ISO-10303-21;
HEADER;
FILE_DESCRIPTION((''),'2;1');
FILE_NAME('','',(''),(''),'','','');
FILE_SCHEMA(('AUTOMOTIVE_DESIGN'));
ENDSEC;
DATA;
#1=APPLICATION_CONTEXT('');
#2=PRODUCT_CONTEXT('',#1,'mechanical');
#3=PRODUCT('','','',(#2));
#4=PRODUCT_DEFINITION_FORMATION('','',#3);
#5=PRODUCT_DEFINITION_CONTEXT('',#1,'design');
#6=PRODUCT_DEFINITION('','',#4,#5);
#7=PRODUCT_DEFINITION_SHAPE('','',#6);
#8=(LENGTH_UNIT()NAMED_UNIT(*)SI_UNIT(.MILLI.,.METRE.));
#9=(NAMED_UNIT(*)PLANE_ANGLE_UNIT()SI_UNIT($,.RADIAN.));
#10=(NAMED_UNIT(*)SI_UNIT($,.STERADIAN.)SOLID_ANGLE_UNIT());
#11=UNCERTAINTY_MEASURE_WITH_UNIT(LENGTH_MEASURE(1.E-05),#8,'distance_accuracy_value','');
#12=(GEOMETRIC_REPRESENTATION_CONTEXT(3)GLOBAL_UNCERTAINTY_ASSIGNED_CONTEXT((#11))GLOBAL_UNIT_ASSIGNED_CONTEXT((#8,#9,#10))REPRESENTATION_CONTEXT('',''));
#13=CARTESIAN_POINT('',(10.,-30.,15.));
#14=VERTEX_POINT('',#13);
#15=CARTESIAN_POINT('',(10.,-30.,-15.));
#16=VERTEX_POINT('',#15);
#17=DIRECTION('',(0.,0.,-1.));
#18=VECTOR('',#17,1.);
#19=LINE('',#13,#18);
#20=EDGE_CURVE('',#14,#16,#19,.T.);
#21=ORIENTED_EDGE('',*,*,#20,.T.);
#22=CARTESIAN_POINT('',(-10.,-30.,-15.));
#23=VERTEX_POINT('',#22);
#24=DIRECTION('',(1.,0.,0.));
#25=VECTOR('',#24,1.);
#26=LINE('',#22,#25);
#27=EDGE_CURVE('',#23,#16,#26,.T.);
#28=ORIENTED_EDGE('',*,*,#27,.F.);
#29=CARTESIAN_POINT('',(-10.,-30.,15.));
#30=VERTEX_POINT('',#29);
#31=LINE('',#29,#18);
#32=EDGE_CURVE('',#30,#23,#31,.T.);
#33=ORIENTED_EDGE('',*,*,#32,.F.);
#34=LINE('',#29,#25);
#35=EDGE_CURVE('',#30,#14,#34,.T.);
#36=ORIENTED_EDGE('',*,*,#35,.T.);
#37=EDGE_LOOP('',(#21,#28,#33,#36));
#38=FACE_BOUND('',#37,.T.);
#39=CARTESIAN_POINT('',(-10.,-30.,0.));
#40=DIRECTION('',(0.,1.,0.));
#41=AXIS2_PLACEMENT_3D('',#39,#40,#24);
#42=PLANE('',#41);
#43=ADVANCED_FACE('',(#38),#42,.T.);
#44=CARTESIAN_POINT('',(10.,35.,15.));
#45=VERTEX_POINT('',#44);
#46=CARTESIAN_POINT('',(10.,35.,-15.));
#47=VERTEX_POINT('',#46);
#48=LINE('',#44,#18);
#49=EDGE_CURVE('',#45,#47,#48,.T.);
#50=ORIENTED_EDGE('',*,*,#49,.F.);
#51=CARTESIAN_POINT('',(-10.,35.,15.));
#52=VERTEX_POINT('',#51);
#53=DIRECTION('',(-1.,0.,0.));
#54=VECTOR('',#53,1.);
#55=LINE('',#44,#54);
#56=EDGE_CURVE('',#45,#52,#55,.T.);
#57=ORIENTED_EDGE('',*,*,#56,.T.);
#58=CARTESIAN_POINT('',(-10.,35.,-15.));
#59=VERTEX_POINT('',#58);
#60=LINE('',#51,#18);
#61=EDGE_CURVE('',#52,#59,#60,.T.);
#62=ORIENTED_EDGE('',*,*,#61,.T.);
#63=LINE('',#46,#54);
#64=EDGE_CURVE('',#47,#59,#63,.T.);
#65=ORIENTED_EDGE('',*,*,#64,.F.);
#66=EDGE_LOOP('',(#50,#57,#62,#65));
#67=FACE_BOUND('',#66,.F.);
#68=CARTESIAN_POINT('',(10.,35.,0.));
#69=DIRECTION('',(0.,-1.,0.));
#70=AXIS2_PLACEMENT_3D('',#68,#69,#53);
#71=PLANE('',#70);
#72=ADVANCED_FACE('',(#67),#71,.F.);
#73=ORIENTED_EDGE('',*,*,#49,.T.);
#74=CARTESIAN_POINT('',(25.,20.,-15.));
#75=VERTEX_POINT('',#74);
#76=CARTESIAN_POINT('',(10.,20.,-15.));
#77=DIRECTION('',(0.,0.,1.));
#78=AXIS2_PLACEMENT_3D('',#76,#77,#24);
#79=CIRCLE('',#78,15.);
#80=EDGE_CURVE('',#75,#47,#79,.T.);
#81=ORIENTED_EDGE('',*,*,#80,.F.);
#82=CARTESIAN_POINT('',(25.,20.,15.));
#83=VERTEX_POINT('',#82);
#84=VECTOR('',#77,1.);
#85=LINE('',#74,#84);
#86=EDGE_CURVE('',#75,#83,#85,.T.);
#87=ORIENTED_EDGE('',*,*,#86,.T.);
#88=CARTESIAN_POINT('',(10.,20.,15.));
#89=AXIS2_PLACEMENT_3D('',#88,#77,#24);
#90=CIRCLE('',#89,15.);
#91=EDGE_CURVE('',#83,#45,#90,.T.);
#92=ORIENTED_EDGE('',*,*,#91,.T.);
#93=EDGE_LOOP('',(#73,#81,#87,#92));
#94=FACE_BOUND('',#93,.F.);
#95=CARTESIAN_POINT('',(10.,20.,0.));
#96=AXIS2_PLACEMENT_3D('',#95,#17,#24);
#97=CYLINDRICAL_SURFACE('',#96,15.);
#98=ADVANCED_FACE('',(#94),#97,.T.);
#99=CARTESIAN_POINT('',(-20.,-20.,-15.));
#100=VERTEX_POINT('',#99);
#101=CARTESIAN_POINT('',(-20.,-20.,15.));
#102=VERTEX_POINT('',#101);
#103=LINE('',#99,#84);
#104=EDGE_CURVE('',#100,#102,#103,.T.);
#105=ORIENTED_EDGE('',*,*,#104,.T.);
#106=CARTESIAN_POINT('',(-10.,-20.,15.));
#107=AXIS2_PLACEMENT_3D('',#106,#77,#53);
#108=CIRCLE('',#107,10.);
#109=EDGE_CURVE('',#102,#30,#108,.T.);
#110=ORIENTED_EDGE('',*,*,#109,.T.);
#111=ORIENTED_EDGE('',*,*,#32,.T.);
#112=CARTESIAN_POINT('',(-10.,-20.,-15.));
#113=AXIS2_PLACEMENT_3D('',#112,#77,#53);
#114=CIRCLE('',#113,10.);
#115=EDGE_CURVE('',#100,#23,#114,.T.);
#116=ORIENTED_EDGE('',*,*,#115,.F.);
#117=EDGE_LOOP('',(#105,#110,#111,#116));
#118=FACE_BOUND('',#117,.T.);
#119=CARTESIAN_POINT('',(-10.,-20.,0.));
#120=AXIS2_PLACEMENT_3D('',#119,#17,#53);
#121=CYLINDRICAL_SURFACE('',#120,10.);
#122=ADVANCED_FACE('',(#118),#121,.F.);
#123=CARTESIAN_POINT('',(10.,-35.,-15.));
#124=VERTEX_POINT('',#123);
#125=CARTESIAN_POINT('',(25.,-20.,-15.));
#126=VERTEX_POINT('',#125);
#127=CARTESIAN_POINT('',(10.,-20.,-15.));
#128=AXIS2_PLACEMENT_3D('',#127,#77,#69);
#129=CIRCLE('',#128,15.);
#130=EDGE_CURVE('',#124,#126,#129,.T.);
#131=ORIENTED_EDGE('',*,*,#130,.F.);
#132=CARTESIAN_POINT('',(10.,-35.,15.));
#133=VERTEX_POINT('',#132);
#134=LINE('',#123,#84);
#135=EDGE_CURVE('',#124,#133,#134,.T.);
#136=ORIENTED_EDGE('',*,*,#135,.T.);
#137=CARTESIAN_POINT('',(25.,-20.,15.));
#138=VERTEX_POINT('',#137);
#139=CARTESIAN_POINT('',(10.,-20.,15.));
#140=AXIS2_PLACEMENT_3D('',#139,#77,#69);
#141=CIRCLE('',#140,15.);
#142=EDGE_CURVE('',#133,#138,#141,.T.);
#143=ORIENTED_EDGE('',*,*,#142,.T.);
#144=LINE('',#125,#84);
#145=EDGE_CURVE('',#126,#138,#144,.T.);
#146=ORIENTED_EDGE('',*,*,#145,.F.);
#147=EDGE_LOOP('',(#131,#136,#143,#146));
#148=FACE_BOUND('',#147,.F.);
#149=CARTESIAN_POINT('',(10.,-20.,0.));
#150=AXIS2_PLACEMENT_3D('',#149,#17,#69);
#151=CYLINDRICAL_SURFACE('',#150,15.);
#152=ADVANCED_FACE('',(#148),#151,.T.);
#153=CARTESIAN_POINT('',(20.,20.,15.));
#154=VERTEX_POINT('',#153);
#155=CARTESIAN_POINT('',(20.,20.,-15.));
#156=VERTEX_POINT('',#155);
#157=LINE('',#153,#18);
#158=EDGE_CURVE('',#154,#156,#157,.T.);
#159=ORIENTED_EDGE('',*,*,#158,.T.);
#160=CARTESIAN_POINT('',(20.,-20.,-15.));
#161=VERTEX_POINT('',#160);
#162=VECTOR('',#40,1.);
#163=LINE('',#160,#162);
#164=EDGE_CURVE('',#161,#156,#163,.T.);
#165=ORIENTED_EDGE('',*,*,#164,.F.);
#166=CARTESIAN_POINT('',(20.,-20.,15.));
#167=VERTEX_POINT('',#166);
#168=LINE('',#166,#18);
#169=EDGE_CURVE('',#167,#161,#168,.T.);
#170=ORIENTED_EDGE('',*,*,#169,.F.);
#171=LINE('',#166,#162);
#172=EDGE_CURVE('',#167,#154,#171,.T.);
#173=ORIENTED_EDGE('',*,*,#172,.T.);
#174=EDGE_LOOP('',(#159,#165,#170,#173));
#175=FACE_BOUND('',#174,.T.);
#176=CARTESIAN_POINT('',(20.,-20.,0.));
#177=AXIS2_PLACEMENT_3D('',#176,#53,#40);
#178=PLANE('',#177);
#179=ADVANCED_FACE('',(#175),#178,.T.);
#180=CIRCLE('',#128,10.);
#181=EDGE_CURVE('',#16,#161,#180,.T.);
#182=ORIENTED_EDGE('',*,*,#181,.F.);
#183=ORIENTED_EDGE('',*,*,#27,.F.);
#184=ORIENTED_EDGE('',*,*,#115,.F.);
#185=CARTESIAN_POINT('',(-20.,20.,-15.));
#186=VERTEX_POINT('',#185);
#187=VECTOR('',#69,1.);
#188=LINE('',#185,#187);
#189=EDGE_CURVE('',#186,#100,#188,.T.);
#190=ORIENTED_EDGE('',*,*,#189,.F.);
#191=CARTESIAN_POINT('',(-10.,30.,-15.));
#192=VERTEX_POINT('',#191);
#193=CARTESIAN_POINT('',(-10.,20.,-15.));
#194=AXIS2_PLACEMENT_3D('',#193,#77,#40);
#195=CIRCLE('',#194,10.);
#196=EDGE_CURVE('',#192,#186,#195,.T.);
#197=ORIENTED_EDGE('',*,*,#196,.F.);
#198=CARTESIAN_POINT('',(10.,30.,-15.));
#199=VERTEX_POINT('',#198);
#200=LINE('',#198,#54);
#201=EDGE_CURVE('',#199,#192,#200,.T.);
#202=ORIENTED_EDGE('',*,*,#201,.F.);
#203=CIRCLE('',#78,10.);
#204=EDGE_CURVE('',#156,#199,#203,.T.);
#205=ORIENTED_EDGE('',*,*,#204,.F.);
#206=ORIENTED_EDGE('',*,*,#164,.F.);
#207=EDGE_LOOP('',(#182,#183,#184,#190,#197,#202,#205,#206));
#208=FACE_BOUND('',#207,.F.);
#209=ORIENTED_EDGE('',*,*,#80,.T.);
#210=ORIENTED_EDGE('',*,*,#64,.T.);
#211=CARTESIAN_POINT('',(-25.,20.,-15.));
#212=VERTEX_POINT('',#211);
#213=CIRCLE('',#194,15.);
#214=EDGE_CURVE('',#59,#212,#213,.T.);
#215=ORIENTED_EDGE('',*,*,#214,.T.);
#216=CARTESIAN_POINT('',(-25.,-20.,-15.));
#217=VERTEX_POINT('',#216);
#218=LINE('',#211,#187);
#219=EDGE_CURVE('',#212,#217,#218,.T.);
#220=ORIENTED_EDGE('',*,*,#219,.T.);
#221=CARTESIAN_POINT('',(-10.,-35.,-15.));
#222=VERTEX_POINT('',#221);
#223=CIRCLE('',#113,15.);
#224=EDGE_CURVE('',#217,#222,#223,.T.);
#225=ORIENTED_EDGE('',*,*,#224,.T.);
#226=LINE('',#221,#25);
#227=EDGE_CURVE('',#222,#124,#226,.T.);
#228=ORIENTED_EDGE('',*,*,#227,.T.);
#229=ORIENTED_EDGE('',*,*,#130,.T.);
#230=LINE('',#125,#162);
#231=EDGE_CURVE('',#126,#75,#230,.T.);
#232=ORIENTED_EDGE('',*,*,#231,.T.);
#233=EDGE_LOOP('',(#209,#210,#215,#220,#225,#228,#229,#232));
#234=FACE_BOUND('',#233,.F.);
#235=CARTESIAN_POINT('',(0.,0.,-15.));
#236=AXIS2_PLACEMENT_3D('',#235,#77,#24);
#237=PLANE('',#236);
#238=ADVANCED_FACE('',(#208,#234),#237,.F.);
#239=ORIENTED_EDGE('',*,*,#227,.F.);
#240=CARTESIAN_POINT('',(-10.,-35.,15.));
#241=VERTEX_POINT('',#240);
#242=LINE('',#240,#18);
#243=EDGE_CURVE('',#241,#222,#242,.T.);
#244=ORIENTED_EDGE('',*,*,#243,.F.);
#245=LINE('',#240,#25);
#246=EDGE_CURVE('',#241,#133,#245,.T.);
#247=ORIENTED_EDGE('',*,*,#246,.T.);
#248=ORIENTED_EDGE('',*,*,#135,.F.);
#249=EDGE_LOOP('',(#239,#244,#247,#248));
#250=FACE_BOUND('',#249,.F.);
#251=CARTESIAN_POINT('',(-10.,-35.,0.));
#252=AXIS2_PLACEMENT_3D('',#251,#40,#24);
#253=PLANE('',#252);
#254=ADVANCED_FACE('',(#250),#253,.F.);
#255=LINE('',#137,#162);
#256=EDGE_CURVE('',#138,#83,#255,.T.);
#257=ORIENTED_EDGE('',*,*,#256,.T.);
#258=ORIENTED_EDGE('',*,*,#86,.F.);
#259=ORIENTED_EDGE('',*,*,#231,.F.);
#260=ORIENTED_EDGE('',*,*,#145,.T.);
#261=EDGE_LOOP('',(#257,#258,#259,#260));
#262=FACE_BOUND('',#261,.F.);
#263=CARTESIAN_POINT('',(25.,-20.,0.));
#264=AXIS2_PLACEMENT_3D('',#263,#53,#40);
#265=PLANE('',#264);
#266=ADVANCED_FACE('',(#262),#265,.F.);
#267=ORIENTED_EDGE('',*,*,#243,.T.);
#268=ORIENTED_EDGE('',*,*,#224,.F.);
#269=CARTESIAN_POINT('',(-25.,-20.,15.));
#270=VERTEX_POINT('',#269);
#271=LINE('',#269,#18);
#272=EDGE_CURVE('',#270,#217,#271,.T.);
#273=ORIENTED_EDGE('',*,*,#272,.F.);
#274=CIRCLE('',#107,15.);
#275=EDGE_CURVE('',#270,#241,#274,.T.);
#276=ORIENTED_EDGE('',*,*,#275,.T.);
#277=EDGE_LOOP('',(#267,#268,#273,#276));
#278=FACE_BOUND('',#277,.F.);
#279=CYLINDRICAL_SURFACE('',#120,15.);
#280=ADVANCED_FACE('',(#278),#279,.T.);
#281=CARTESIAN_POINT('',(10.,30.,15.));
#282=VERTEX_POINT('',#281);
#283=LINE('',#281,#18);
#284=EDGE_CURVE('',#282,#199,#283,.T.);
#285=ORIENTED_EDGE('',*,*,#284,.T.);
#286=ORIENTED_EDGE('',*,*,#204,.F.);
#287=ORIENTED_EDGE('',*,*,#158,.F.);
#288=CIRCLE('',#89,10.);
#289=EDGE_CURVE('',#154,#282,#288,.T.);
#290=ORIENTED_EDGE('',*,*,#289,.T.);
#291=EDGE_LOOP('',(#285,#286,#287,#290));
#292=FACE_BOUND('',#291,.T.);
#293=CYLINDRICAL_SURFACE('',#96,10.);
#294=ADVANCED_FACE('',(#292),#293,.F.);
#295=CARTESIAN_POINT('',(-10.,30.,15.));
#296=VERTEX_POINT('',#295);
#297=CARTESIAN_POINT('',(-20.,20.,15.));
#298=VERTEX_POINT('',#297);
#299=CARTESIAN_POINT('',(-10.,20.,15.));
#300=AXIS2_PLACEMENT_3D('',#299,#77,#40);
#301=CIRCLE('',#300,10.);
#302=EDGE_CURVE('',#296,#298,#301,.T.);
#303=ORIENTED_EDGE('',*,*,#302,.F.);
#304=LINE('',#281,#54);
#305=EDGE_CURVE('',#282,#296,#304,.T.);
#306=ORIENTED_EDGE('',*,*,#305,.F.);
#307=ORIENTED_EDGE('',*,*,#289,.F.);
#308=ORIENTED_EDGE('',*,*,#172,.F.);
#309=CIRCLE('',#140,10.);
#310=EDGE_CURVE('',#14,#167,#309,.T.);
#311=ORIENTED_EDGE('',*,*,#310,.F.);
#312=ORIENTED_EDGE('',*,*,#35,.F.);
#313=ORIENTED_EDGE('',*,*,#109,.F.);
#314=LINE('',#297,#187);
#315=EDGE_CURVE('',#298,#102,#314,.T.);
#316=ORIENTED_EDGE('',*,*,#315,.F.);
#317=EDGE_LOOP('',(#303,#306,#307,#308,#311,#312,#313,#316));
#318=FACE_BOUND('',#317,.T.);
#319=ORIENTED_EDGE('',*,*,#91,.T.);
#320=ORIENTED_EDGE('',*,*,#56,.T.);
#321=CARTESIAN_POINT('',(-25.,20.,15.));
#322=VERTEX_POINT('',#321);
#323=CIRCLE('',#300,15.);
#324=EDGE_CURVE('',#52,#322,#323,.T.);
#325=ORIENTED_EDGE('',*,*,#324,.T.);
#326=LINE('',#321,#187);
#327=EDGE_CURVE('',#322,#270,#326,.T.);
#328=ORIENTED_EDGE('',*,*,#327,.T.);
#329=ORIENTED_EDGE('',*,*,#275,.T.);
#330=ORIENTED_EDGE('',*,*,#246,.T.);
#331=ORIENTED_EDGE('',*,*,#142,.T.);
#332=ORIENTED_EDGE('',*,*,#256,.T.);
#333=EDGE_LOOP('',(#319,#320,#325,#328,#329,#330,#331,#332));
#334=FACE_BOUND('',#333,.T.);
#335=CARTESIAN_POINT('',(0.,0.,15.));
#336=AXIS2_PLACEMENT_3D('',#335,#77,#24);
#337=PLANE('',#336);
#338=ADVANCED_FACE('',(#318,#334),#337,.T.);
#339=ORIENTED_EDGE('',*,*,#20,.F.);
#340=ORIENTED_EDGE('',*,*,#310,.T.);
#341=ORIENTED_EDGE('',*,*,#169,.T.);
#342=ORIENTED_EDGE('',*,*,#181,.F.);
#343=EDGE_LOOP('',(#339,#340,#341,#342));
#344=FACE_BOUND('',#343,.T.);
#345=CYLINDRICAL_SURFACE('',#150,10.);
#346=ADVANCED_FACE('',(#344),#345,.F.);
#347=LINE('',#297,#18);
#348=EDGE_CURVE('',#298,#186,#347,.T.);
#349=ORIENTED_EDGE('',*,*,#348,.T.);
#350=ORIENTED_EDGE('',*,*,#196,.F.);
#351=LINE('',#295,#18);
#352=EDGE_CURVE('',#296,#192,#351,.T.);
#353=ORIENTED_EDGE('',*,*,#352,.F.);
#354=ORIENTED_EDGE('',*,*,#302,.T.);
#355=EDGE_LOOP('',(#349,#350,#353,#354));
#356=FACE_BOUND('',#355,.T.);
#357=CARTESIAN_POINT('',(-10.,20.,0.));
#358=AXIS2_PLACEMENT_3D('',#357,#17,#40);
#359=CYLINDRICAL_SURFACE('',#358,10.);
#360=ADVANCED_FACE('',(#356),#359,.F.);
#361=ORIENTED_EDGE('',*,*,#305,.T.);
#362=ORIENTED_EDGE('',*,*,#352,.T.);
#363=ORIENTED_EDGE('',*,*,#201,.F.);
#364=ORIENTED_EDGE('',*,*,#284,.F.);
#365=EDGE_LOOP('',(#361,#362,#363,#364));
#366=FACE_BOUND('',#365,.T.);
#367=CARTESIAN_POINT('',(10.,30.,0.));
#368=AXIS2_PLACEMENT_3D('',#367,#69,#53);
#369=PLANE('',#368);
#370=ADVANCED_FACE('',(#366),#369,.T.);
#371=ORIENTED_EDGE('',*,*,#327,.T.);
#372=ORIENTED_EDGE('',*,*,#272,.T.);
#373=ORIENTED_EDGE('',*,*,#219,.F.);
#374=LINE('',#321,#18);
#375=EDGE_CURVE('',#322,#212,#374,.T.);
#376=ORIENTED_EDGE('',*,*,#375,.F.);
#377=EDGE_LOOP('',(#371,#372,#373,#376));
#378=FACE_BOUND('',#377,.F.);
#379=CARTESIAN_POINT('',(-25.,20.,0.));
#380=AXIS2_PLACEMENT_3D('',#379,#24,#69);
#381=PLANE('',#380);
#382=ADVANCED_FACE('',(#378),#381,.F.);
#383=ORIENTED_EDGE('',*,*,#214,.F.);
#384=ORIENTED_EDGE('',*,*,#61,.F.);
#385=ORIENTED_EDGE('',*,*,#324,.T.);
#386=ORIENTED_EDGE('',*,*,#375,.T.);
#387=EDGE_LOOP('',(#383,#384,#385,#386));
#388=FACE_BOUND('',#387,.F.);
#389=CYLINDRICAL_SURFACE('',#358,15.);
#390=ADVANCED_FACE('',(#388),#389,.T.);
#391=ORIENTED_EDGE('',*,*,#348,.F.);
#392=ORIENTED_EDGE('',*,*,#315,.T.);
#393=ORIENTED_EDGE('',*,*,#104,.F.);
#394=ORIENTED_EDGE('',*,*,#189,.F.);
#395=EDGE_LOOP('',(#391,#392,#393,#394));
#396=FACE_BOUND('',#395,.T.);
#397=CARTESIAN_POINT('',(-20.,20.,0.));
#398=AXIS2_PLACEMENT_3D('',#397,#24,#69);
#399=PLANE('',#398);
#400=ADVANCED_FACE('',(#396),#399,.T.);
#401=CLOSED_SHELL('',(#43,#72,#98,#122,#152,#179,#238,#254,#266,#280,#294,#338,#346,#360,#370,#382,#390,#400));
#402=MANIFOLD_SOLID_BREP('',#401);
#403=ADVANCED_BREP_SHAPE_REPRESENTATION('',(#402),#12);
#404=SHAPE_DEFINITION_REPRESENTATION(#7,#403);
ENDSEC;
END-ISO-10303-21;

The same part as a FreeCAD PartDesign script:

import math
import FreeCAD as App
import Part
import Sketcher

doc = App.newDocument("Part")
params = doc.addObject("Spreadsheet::Sheet", "Params")
for row, (alias, value) in enumerate([
    ("sketch1_radius", "15 mm"),
    ("sketch1_radius2", "10 mm"),
    ("sketch1_width", "20 mm"),
    ("sketch1_height", "40 mm"),
    ("pad1_length", "30 mm"),
], start=1):
    params.set(f"A{row}", alias)
    params.set(f"B{row}", "=" + value)
    params.setAlias(f"B{row}", alias)

body = doc.addObject("PartDesign::Body", "Body")

sketch1 = body.newObject("Sketcher::SketchObject", "Sketch")
sketch1.AttachmentSupport = (doc.getObject("XY_Plane"), [""])
sketch1.MapMode = "FlatFace"
sketch1.addGeometry([
    Part.LineSegment(App.Vector(-10, -35, 0), App.Vector(10, -35, 0)),
    Part.ArcOfCircle(Part.Circle(App.Vector(10, -20, 0), App.Vector(0, 0, 1), 15), math.radians(-90), math.radians(0)),
    Part.LineSegment(App.Vector(25, -20, 0), App.Vector(25, 20, 0)),
    Part.ArcOfCircle(Part.Circle(App.Vector(10, 20, 0), App.Vector(0, 0, 1), 15), math.radians(0), math.radians(90)),
    Part.LineSegment(App.Vector(10, 35, 0), App.Vector(-10, 35, 0)),
    Part.ArcOfCircle(Part.Circle(App.Vector(-10, 20, 0), App.Vector(0, 0, 1), 15), math.radians(90), math.radians(180)),
    Part.LineSegment(App.Vector(-25, 20, 0), App.Vector(-25, -20, 0)),
    Part.ArcOfCircle(Part.Circle(App.Vector(-10, -20, 0), App.Vector(0, 0, 1), 15), math.radians(180), math.radians(270)),
    Part.ArcOfCircle(Part.Circle(App.Vector(-10, -20, 0), App.Vector(0, 0, 1), 10), math.radians(180), math.radians(270)),
    Part.LineSegment(App.Vector(-20, -20, 0), App.Vector(-20, 20, 0)),
    Part.ArcOfCircle(Part.Circle(App.Vector(-10, 20, 0), App.Vector(0, 0, 1), 10), math.radians(90), math.radians(180)),
    Part.LineSegment(App.Vector(-10, 30, 0), App.Vector(10, 30, 0)),
    Part.ArcOfCircle(Part.Circle(App.Vector(10, 20, 0), App.Vector(0, 0, 1), 10), math.radians(0), math.radians(90)),
    Part.LineSegment(App.Vector(20, 20, 0), App.Vector(20, -20, 0)),
    Part.ArcOfCircle(Part.Circle(App.Vector(10, -20, 0), App.Vector(0, 0, 1), 10), math.radians(-90), math.radians(0)),
    Part.LineSegment(App.Vector(10, -30, 0), App.Vector(-10, -30, 0)),
], False)
sketch1.addConstraint([
    Sketcher.Constraint("Tangent", 0, 2, 1, 1),
    Sketcher.Constraint("Tangent", 1, 2, 2, 1),
    Sketcher.Constraint("Tangent", 2, 2, 3, 1),
    Sketcher.Constraint("Tangent", 3, 2, 4, 1),
    Sketcher.Constraint("Tangent", 4, 2, 5, 1),
    Sketcher.Constraint("Tangent", 5, 2, 6, 1),
    Sketcher.Constraint("Tangent", 6, 2, 7, 1),
    Sketcher.Constraint("Tangent", 7, 2, 0, 1),
    Sketcher.Constraint("Tangent", 8, 1, 9, 1),
    Sketcher.Constraint("Tangent", 9, 2, 10, 2),
    Sketcher.Constraint("Tangent", 10, 1, 11, 1),
    Sketcher.Constraint("Tangent", 11, 2, 12, 2),
    Sketcher.Constraint("Tangent", 12, 1, 13, 1),
    Sketcher.Constraint("Tangent", 13, 2, 14, 2),
    Sketcher.Constraint("Tangent", 14, 1, 15, 1),
    Sketcher.Constraint("Tangent", 15, 2, 8, 2),
    Sketcher.Constraint("Horizontal", 0),
    Sketcher.Constraint("Vertical", 2),
    Sketcher.Constraint("Horizontal", 4),
    Sketcher.Constraint("Vertical", 6),
    Sketcher.Constraint("Vertical", 9),
    Sketcher.Constraint("Horizontal", 11),
    Sketcher.Constraint("Vertical", 13),
    Sketcher.Constraint("Horizontal", 15),
    Sketcher.Constraint("Coincident", 8, 3, 7, 3),
    Sketcher.Constraint("Coincident", 10, 3, 5, 3),
    Sketcher.Constraint("Coincident", 12, 3, 3, 3),
    Sketcher.Constraint("Equal", 1, 3),
    Sketcher.Constraint("Equal", 3, 5),
    Sketcher.Constraint("Equal", 5, 7),
    Sketcher.Constraint("Equal", 12, 14),
    Sketcher.Constraint("Symmetric", 1, 3, 5, 3, -1, 1),
    Sketcher.Constraint("Radius", 1, 15.0),
    Sketcher.Constraint("Radius", 8, 10.0),
    Sketcher.Constraint("DistanceX", 0, 1, 0, 2, 20.0),
    Sketcher.Constraint("DistanceY", 2, 1, 2, 2, 40.0),
])
sketch1.setExpression("Constraints[32]", "Params.sketch1_radius")
sketch1.setExpression("Constraints[33]", "Params.sketch1_radius2")
sketch1.setExpression("Constraints[34]", "Params.sketch1_width")
sketch1.setExpression("Constraints[35]", "Params.sketch1_height")
pad1 = body.newObject("PartDesign::Pad", "Pad")
pad1.Profile = sketch1
pad1.setExpression("Length", "Params.pad1_length")
pad1.Midplane = True

doc.recompute()
